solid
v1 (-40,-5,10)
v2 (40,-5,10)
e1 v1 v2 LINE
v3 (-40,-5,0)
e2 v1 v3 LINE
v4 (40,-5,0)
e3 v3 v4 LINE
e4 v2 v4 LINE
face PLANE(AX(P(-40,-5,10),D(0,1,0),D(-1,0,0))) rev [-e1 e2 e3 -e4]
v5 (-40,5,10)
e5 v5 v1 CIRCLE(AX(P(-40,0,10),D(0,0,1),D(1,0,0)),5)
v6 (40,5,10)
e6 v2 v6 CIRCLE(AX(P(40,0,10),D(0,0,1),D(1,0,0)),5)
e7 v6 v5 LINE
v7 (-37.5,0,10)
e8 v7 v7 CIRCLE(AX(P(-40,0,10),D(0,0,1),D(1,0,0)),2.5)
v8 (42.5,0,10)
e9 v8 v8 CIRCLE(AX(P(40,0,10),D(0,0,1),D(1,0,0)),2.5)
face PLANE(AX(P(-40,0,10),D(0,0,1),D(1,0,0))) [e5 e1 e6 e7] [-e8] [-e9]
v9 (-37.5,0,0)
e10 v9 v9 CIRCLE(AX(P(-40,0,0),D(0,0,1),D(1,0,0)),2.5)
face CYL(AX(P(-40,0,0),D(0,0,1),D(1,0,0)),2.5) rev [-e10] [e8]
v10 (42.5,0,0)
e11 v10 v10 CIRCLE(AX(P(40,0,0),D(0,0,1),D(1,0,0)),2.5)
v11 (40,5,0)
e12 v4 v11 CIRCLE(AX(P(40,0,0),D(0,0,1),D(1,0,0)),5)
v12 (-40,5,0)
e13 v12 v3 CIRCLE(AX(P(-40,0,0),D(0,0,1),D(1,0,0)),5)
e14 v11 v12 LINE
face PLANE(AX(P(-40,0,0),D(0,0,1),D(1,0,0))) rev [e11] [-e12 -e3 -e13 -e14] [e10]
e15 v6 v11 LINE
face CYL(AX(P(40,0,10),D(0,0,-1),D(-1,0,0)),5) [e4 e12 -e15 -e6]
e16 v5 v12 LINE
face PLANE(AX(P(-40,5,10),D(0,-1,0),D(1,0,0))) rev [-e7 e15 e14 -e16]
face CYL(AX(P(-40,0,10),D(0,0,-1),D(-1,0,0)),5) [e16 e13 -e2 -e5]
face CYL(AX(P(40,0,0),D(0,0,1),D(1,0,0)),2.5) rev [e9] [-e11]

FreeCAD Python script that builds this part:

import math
import FreeCAD as App
import Part
import Sketcher
from FreeCAD import Vector

doc = App.newDocument("Part")
body = doc.addObject("PartDesign::Body", "Body")

sketch1 = doc.addObject("Sketcher::SketchObject", "Sketch")
body.addObject(sketch1)
sketch1.AttachmentSupport = (doc.XY_Plane, [""])
sketch1.MapMode = "FlatFace"
sketch1.addGeometry([
    Part.LineSegment(Vector(40, 5, 0), Vector(-40, 5, 0)),
    Part.ArcOfCircle(Part.Circle(Vector(-40, 0, 0), Vector(0, 0, 1), 5), math.radians(90), math.radians(270)),
    Part.LineSegment(Vector(-40, -5, 0), Vector(40, -5, 0)),
    Part.ArcOfCircle(Part.Circle(Vector(40, 0, 0), Vector(0, 0, 1), 5), math.radians(-90), math.radians(90)),
], False)
sketch1.addConstraint([
    Sketcher.Constraint("Tangent", 0, 2, 1, 1),
    Sketcher.Constraint("Tangent", 1, 2, 2, 1),
    Sketcher.Constraint("Tangent", 2, 2, 3, 1),
    Sketcher.Constraint("Tangent", 3, 2, 0, 1),
    Sketcher.Constraint("Horizontal", 0),
    Sketcher.Constraint("Horizontal", 2),
    Sketcher.Constraint("Symmetric", 1, 3, 3, 3, -1, 1),
    Sketcher.Constraint("Radius", 1, 5.0),
    Sketcher.Constraint("DistanceX", 0, 2, 0, 1, 80.0),
])
pad1 = doc.addObject("PartDesign::Pad", "Pad")
body.addObject(pad1)
pad1.Profile = sketch1
pad1.Length = 10

sketch2 = doc.addObject("Sketcher::SketchObject", "Sketch001")
body.addObject(sketch2)
sketch2.AttachmentSupport = (doc.XY_Plane, [""])
sketch2.MapMode = "FlatFace"
sketch2.AttachmentOffset = App.Placement(Vector(0, 0, 10), App.Rotation())
sketch2.addGeometry([
    Part.Circle(Vector(-40, 0, 0), Vector(0, 0, 1), 2.5),
    Part.Circle(Vector(40, 0, 0), Vector(0, 0, 1), 2.5),
], False)
sketch2.addConstraint([
    Sketcher.Constraint("Equal", 0, 1),
    Sketcher.Constraint("Symmetric", 0, 3, 1, 3, -1, 1),
    Sketcher.Constraint("PointOnObject", 0, 3, -1),
    Sketcher.Constraint("Diameter", 0, 5.0),
    Sketcher.Constraint("DistanceX", 0, 3, -1, 1, 40.0),
])
pocket1 = doc.addObject("PartDesign::Pocket", "Pocket")
body.addObject(pocket1)
pocket1.Profile = sketch2
pocket1.Type = "ThroughAll"

doc.recompute()
